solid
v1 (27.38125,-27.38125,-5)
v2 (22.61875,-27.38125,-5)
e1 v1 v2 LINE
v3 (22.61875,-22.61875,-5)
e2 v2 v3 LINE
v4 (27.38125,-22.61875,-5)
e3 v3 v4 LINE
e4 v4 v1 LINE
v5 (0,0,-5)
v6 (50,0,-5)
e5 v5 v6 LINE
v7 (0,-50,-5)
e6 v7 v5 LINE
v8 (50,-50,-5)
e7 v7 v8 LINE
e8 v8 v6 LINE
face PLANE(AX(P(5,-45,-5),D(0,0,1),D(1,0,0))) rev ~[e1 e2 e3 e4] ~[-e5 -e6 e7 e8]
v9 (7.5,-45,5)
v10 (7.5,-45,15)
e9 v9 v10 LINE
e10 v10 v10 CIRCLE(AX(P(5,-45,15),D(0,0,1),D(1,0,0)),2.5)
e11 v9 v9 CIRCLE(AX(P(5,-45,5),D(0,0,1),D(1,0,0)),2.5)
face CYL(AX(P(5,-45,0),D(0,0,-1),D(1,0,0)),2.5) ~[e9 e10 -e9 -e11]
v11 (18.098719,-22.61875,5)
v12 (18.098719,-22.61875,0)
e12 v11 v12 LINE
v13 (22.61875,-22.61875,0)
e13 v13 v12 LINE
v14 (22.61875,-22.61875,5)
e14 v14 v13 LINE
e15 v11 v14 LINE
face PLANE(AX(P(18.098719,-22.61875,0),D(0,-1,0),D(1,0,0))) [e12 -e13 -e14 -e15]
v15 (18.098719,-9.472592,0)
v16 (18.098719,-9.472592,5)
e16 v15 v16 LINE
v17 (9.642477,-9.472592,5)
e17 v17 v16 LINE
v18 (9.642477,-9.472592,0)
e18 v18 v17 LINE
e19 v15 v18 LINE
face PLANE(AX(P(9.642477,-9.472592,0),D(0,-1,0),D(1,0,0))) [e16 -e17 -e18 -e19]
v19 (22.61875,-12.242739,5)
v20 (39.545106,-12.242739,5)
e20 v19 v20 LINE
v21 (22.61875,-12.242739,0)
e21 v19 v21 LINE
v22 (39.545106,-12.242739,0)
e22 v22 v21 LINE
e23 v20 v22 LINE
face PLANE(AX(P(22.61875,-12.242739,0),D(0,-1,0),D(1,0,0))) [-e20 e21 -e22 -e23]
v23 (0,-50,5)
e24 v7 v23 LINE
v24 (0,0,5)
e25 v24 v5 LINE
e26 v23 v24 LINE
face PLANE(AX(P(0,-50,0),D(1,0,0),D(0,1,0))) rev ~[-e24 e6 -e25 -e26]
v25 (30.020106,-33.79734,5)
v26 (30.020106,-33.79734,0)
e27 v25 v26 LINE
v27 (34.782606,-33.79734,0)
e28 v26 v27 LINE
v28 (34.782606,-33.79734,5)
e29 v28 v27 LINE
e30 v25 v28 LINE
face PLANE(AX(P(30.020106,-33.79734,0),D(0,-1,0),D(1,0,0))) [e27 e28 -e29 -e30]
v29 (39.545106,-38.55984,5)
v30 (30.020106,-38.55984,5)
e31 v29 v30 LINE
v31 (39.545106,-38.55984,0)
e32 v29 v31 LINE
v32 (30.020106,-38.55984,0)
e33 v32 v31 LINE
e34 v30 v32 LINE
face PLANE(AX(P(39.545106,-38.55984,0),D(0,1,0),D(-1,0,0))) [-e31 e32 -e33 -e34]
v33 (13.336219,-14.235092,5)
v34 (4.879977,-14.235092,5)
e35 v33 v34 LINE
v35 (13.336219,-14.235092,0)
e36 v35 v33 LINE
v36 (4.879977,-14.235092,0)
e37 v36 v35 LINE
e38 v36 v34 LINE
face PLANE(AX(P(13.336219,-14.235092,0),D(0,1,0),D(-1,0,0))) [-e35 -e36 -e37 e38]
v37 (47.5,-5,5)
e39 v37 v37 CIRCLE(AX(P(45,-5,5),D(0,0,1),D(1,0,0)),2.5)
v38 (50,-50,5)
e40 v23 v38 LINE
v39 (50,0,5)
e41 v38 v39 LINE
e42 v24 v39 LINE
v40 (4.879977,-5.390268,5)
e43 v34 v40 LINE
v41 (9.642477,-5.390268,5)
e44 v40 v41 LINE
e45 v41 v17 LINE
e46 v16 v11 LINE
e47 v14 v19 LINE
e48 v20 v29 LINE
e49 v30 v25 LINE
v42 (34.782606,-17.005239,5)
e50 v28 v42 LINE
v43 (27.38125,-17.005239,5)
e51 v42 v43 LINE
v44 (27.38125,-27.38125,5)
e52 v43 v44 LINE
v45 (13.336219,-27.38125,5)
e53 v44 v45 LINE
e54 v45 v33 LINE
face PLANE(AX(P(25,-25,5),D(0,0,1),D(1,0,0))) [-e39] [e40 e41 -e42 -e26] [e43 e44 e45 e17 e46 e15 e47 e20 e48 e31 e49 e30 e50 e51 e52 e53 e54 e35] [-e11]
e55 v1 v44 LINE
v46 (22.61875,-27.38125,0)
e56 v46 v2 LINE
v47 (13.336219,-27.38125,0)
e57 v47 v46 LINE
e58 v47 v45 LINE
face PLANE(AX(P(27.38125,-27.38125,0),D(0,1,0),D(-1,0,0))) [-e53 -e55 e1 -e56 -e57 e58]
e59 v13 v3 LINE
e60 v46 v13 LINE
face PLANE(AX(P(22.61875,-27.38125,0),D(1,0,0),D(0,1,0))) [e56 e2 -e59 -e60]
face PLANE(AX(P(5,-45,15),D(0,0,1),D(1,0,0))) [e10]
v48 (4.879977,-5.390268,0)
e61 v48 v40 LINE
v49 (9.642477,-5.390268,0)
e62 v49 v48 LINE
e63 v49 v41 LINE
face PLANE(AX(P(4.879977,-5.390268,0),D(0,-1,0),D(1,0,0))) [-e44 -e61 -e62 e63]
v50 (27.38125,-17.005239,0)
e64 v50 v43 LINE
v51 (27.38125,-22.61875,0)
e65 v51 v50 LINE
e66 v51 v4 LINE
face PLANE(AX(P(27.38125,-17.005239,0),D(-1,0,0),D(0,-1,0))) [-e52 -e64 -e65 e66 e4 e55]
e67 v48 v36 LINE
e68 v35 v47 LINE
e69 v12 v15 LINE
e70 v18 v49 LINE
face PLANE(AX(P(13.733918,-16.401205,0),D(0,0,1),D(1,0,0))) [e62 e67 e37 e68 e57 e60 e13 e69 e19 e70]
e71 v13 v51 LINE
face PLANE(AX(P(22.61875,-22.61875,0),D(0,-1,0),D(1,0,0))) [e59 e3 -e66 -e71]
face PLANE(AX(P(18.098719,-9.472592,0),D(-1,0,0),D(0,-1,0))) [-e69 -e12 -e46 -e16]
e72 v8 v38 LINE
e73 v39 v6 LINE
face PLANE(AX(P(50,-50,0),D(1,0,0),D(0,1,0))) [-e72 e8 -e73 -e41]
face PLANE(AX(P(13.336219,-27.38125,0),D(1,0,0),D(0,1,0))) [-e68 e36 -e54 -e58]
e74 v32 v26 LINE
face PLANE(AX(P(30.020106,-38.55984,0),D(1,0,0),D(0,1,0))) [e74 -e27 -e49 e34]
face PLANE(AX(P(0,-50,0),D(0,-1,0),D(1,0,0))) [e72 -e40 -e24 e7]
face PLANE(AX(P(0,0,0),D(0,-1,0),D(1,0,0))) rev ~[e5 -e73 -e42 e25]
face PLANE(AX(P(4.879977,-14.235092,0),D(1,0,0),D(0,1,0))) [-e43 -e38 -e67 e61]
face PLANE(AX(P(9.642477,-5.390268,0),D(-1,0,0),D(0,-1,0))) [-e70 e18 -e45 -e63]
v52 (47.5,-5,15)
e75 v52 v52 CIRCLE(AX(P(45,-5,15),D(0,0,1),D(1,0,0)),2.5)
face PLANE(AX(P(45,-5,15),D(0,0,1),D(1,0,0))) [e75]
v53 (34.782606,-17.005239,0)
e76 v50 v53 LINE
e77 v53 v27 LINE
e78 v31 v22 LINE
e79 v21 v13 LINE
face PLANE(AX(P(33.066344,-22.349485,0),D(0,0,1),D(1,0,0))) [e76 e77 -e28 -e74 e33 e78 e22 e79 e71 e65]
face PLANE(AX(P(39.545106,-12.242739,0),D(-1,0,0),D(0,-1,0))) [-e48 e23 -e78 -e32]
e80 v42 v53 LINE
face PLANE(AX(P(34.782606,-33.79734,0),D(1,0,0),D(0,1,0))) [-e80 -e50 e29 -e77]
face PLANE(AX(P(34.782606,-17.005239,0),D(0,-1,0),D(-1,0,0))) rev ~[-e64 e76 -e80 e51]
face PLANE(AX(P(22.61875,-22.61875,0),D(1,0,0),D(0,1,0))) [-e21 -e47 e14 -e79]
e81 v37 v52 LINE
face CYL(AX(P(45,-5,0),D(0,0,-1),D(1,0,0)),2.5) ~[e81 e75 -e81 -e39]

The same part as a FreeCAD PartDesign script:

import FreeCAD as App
import Part
import Sketcher

V = App.Vector
Q = App.Units.Quantity


def add_polygon(sketch, points):
    """Adds a closed chain of lines whose ends are joined by coincident constraints."""
    first, n = sketch.GeometryCount, len(points)
    for a, b in zip(points, points[1:] + points[:1]):
        sketch.addGeometry(Part.LineSegment(App.Vector(*a, 0), App.Vector(*b, 0)), False)
    for i in range(n):
        sketch.addConstraint(Sketcher.Constraint("Coincident", first + i, 2, first + (i + 1) % n, 1))

doc = App.newDocument("Part")
body = doc.addObject("PartDesign::Body", "Body")

# Sketch on XY plane
sketch1 = body.newObject("Sketcher::SketchObject", "Sketch")
sketch1.AttachmentSupport = (doc.getObject("XY_Plane"), [""])
sketch1.MapMode = "FlatFace"
add_polygon(sketch1, [(0, 0), (0, -50), (50, -50), (50, 0)])  # lines 0-3
sketch1.addGeometry(Part.Circle(V(5, -45, 0), V(0, 0, 1), 2.5), False)  # 4
add_polygon(sketch1, [(18.1, -9.5), (18.1, -22.6), (22.6, -22.6), (22.6, -12.2), (39.5, -12.2), (39.5, -38.6), (30, -38.6), (30, -33.8), (34.8, -33.8), (34.8, -17), (27.4, -17), (27.4, -27.4), (13.3, -27.4), (13.3, -14.2), (4.9, -14.2), (4.9, -5.4), (9.6, -5.4), (9.6, -9.5)])  # lines 5-22
sketch1.addGeometry(Part.Circle(V(45, -5, 0), V(0, 0, 1), 2.5), False)  # 23
sketch1.addConstraint([
    Sketcher.Constraint("Vertical", 0),
    Sketcher.Constraint("Horizontal", 1),
    Sketcher.Constraint("Vertical", 2),
    Sketcher.Constraint("Horizontal", 3),
    Sketcher.Constraint("Vertical", 5),
    Sketcher.Constraint("Horizontal", 6),
    Sketcher.Constraint("Vertical", 7),
    Sketcher.Constraint("Horizontal", 8),
    Sketcher.Constraint("Vertical", 9),
    Sketcher.Constraint("Horizontal", 10),
    Sketcher.Constraint("Vertical", 11),
    Sketcher.Constraint("Horizontal", 12),
    Sketcher.Constraint("Vertical", 13),
    Sketcher.Constraint("Horizontal", 14),
    Sketcher.Constraint("Vertical", 15),
    Sketcher.Constraint("Horizontal", 16),
    Sketcher.Constraint("Vertical", 17),
    Sketcher.Constraint("Horizontal", 18),
    Sketcher.Constraint("Vertical", 19),
    Sketcher.Constraint("Horizontal", 20),
    Sketcher.Constraint("Vertical", 21),
    Sketcher.Constraint("Horizontal", 22),
    Sketcher.Constraint("Coincident", 3, 2, -1, 1),
    Sketcher.Constraint("Equal", 4, 23),
    Sketcher.Constraint("Equal", 12, 20),
    Sketcher.Constraint("Equal", 18, 22),
    Sketcher.Constraint("Equal", 3, 0),
    Sketcher.Constraint("Equal", 20, 11),
    Sketcher.Constraint("Equal", 7, 15),
    Sketcher.Constraint("Equal", 5, 17),
    Sketcher.Constraint("Diameter", 4, Q("5 mm")),
    Sketcher.Constraint("DistanceX", 1, 1, 1, 2, Q("50 mm")),
    Sketcher.Constraint("DistanceX", -1, 1, 4, 3, Q("5 mm")),
    Sketcher.Constraint("DistanceY", 4, 3, -1, 1, Q("45 mm")),
    Sketcher.Constraint("DistanceX", -1, 1, 23, 3, Q("45 mm")),
    Sketcher.Constraint("DistanceY", 23, 3, -1, 1, Q("5 mm")),
    Sketcher.Constraint("DistanceX", 10, 2, 10, 1, Q("9.525 mm")),
    Sketcher.Constraint("DistanceX", 12, 1, 12, 2, Q("4.7625 mm")),
    Sketcher.Constraint("DistanceY", 9, 2, 9, 1, Q("26.317101 mm")),
    Sketcher.Constraint("DistanceY", 13, 1, 13, 2, Q("16.792101 mm")),
    Sketcher.Constraint("DistanceX", 6, 1, 6, 2, Q("4.520031 mm")),
    Sketcher.Constraint("DistanceX", 16, 2, 16, 1, Q("14.045031 mm")),
    Sketcher.Constraint("DistanceY", 7, 1, 7, 2, Q("10.376011 mm")),
    Sketcher.Constraint("DistanceY", 17, 1, 17, 2, Q("13.146158 mm")),
    Sketcher.Constraint("DistanceX", 8, 1, 8, 2, Q("16.926356 mm")),
    Sketcher.Constraint("DistanceX", 18, 2, 18, 1, Q("8.456242 mm")),
    Sketcher.Constraint("DistanceY", 19, 1, 19, 2, Q("8.844824 mm")),
    Sketcher.Constraint("DistanceX", -1, 1, 5, 2, Q("18.098719 mm")),
    Sketcher.Constraint("DistanceY", 5, 2, -1, 1, Q("22.61875 mm")),
])
pad1 = body.newObject("PartDesign::Pad", "Pad")
pad1.Profile = sketch1
pad1.Length = 10
pad1.Midplane = True

# Sketch on XY plane
sketch2 = body.newObject("Sketcher::SketchObject", "Sketch001")
sketch2.AttachmentSupport = (doc.getObject("XY_Plane"), [""])
sketch2.MapMode = "FlatFace"
add_polygon(sketch2, [(22.6, -27.4), (22.6, -22.6), (18.1, -22.6), (18.1, -9.5), (9.6, -9.5), (9.6, -5.4), (4.9, -5.4), (4.9, -14.2), (13.3, -14.2), (13.3, -27.4)])  # lines 0-9
add_polygon(sketch2, [(22.6, -12.2), (22.6, -22.6), (27.4, -22.6), (27.4, -17), (34.8, -17), (34.8, -33.8), (30, -33.8), (30, -38.6), (39.5, -38.6), (39.5, -12.2)])  # lines 10-19
sketch2.addConstraint([
    Sketcher.Constraint("Vertical", 0),
    Sketcher.Constraint("Horizontal", 1),
    Sketcher.Constraint("Vertical", 2),
    Sketcher.Constraint("Horizontal", 3),
    Sketcher.Constraint("Vertical", 4),
    Sketcher.Constraint("Horizontal", 5),
    Sketcher.Constraint("Vertical", 6),
    Sketcher.Constraint("Horizontal", 7),
    Sketcher.Constraint("Vertical", 8),
    Sketcher.Constraint("Horizontal", 9),
    Sketcher.Constraint("Vertical", 10),
    Sketcher.Constraint("Horizontal", 11),
    Sketcher.Constraint("Vertical", 12),
    Sketcher.Constraint("Horizontal", 13),
    Sketcher.Constraint("Vertical", 14),
    Sketcher.Constraint("Horizontal", 15),
    Sketcher.Constraint("Vertical", 16),
    Sketcher.Constraint("Horizontal", 17),
    Sketcher.Constraint("Vertical", 18),
    Sketcher.Constraint("Horizontal", 19),
    Sketcher.Constraint("Coincident", 10, 2, 0, 2),
    Sketcher.Constraint("Equal", 3, 7),
    Sketcher.Constraint("Equal", 5, 11),
    Sketcher.Constraint("Equal", 11, 15),
    Sketcher.Constraint("Equal", 15, 0),
    Sketcher.Constraint("Equal", 2, 8),
    Sketcher.Constraint("Equal", 0, 16),
    Sketcher.Constraint("DistanceX", 17, 1, 17, 2, Q("9.525 mm")),
    Sketcher.Constraint("DistanceX", 5, 2, 5, 1, Q("4.7625 mm")),
    Sketcher.Constraint("DistanceY", 14, 2, 14, 1, Q("16.792101 mm")),
    Sketcher.Constraint("DistanceY", 18, 1, 18, 2, Q("26.317101 mm")),
    Sketcher.Constraint("DistanceX", 1, 2, 1, 1, Q("4.520031 mm")),
    Sketcher.Constraint("DistanceY", 8, 2, 8, 1, Q("13.146158 mm")),
    Sketcher.Constraint("DistanceY", 10, 2, 10, 1, Q("10.376011 mm")),
    Sketcher.Constraint("DistanceX", 3, 2, 3, 1, Q("8.456242 mm")),
    Sketcher.Constraint("DistanceX", 13, 1, 13, 2, Q("7.401356 mm")),
    Sketcher.Constraint("DistanceY", 4, 1, 4, 2, Q("4.082324 mm")),
    Sketcher.Constraint("DistanceX", -1, 1, 0, 2, Q("22.61875 mm")),
    Sketcher.Constraint("DistanceY", 0, 2, -1, 1, Q("22.61875 mm")),
])
pocket1 = body.newObject("PartDesign::Pocket", "Pocket")
pocket1.Profile = sketch2
pocket1.Length = 2.38125
pocket1.Reversed = True

# Sketch on XY plane
sketch3 = body.newObject("Sketcher::SketchObject", "Sketch002")
sketch3.AttachmentSupport = (doc.getObject("XY_Plane"), [""])
sketch3.MapMode = "FlatFace"
add_polygon(sketch3, [(22.6, -12.2), (22.6, -22.6), (27.4, -22.6), (27.4, -17), (34.8, -17), (34.8, -33.8), (30, -33.8), (30, -38.6), (39.5, -38.6), (39.5, -12.2)])  # lines 0-9
add_polygon(sketch3, [(22.6, -27.4), (22.6, -22.6), (18.1, -22.6), (18.1, -9.5), (9.6, -9.5), (9.6, -5.4), (4.9, -5.4), (4.9, -14.2), (13.3, -14.2), (13.3, -27.4)])  # lines 10-19
sketch3.addConstraint([
    Sketcher.Constraint("Vertical", 0),
    Sketcher.Constraint("Horizontal", 1),
    Sketcher.Constraint("Vertical", 2),
    Sketcher.Constraint("Horizontal", 3),
    Sketcher.Constraint("Vertical", 4),
    Sketcher.Constraint("Horizontal", 5),
    Sketcher.Constraint("Vertical", 6),
    Sketcher.Constraint("Horizontal", 7),
    Sketcher.Constraint("Vertical", 8),
    Sketcher.Constraint("Horizontal", 9),
    Sketcher.Constraint("Vertical", 10),
    Sketcher.Constraint("Horizontal", 11),
    Sketcher.Constraint("Vertical", 12),
    Sketcher.Constraint("Horizontal", 13),
    Sketcher.Constraint("Vertical", 14),
    Sketcher.Constraint("Horizontal", 15),
    Sketcher.Constraint("Vertical", 16),
    Sketcher.Constraint("Horizontal", 17),
    Sketcher.Constraint("Vertical", 18),
    Sketcher.Constraint("Horizontal", 19),
    Sketcher.Constraint("Coincident", 10, 2, 0, 2),
    Sketcher.Constraint("Equal", 1, 5),
    Sketcher.Constraint("Equal", 5, 15),
    Sketcher.Constraint("Equal", 13, 17),
    Sketcher.Constraint("Equal", 15, 6),
    Sketcher.Constraint("Equal", 6, 10),
    Sketcher.Constraint("Equal", 12, 18),
    Sketcher.Constraint("DistanceX", 7, 1, 7, 2, Q("9.525 mm")),
    Sketcher.Constraint("DistanceX", 1, 1, 1, 2, Q("4.7625 mm")),
    Sketcher.Constraint("DistanceY", 4, 2, 4, 1, Q("16.792101 mm")),
    Sketcher.Constraint("DistanceY", 8, 1, 8, 2, Q("26.317101 mm")),
    Sketcher.Constraint("DistanceX", 11, 2, 11, 1, Q("4.520031 mm")),
    Sketcher.Constraint("DistanceY", 0, 2, 0, 1, Q("10.376011 mm")),
    Sketcher.Constraint("DistanceY", 18, 2, 18, 1, Q("13.146158 mm")),
    Sketcher.Constraint("DistanceX", 3, 1, 3, 2, Q("7.401356 mm")),
    Sketcher.Constraint("DistanceX", 13, 2, 13, 1, Q("8.456242 mm")),
    Sketcher.Constraint("DistanceY", 14, 1, 14, 2, Q("4.082324 mm")),
    Sketcher.Constraint("DistanceX", -1, 1, 0, 2, Q("22.61875 mm")),
    Sketcher.Constraint("DistanceY", 0, 2, -1, 1, Q("22.61875 mm")),
])
pad2 = body.newObject("PartDesign::Pad", "Pad001")
pad2.Profile = sketch3
pad2.Length = 5
pad2.Reversed = True

# Sketch on XY plane
sketch4 = body.newObject("Sketcher::SketchObject", "Sketch003")
sketch4.AttachmentSupport = (doc.getObject("XY_Plane"), [""])
sketch4.MapMode = "FlatFace"
sketch4.addGeometry([
    Part.Circle(V(5, -45, 0), V(0, 0, 1), 2.5),
    Part.Circle(V(45, -5, 0), V(0, 0, 1), 2.5),
], False)
sketch4.addConstraint([
    Sketcher.Constraint("Equal", 0, 1),
    Sketcher.Constraint("Diameter", 0, Q("5 mm")),
    Sketcher.Constraint("DistanceX", -1, 1, 0, 3, Q("5 mm")),
    Sketcher.Constraint("DistanceY", 0, 3, -1, 1, Q("45 mm")),
    Sketcher.Constraint("DistanceX", -1, 1, 1, 3, Q("45 mm")),
    Sketcher.Constraint("DistanceY", 1, 3, -1, 1, Q("5 mm")),
])
pad3 = body.newObject("PartDesign::Pad", "Pad002")
pad3.Profile = sketch4
pad3.Type = "TwoLengths"
pad3.Length = 15
pad3.Length2 = 5

doc.recompute()
